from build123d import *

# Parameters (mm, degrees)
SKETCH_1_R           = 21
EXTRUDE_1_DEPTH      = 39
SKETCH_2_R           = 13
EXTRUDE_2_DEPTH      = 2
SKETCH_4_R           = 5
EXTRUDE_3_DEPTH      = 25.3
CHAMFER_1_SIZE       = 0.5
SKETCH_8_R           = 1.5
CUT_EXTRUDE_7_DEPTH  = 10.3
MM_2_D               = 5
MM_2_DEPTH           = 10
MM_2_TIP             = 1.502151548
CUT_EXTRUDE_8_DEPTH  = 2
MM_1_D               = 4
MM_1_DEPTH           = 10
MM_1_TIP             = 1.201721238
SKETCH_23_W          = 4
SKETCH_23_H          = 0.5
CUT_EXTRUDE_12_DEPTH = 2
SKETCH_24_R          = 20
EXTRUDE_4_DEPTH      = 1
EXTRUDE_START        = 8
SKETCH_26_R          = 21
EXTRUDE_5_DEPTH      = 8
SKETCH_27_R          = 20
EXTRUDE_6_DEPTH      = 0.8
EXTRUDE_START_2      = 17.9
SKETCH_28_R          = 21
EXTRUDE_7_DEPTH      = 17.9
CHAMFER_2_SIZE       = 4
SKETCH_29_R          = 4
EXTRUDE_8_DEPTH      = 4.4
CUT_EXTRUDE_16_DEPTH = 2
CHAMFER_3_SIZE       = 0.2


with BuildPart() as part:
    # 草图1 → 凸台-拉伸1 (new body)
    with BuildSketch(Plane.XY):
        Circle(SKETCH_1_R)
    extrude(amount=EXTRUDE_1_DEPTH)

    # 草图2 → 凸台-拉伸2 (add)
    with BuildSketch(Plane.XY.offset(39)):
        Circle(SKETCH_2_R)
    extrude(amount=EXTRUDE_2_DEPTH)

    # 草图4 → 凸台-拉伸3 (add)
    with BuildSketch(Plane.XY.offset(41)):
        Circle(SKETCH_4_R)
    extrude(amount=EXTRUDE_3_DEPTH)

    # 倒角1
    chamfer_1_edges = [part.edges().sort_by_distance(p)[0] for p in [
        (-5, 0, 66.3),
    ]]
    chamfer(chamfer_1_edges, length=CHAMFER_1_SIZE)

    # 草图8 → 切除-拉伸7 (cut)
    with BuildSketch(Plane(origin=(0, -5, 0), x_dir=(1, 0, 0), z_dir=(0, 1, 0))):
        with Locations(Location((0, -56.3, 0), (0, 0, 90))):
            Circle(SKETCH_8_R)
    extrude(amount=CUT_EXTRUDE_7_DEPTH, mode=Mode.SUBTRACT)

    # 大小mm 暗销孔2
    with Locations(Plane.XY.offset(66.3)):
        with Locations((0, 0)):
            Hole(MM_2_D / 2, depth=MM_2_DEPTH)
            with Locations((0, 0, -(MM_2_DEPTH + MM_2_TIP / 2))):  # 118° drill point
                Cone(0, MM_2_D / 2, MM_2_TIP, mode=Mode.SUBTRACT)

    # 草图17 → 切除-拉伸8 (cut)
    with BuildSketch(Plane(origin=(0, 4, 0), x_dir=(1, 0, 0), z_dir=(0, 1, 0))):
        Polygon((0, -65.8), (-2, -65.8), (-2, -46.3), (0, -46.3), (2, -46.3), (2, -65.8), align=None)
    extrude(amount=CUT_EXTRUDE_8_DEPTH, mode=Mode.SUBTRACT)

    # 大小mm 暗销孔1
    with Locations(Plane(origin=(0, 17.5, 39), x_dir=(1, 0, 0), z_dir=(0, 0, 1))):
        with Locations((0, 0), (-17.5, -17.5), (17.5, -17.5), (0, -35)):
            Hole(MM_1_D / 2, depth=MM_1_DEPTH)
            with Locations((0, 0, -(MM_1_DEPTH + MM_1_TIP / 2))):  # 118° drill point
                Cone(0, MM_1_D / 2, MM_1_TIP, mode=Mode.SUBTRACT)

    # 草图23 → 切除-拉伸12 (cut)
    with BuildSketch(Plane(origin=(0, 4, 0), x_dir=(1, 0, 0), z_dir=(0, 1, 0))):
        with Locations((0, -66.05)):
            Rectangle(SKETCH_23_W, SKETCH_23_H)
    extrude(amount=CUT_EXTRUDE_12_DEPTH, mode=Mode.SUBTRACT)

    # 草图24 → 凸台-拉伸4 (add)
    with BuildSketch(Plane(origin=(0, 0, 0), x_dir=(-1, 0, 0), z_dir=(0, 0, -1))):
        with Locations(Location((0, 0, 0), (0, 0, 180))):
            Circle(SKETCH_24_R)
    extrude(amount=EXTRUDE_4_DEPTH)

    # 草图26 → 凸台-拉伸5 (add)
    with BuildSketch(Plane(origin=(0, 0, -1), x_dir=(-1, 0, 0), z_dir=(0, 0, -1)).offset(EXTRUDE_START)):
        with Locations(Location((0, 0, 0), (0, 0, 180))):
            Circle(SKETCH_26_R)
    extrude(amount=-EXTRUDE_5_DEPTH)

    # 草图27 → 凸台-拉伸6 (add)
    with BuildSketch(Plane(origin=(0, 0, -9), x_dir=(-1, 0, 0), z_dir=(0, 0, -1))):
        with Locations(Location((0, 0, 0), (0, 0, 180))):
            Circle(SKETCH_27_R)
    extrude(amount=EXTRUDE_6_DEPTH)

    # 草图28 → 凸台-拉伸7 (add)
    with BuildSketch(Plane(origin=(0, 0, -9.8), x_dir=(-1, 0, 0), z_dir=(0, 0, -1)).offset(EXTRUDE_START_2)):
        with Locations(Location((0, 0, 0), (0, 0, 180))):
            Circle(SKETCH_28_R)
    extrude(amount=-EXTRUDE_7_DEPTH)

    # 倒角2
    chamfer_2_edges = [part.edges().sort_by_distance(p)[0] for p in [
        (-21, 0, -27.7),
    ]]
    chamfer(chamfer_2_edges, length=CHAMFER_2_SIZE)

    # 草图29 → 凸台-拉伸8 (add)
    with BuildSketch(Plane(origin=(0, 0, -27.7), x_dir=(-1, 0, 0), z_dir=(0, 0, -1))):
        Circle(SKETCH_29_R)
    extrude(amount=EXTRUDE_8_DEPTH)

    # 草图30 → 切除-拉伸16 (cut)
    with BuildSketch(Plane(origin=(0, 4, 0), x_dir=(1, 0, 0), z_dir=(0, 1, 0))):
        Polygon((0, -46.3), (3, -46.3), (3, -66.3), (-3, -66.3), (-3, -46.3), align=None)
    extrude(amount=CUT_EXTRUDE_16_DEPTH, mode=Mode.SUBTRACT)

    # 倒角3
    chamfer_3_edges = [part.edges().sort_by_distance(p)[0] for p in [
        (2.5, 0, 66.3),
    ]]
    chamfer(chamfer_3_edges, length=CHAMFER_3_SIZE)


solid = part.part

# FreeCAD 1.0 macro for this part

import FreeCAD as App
import Part
import Sketcher


def edges_at(feature, points):
    """Names of the edges that pass closest to the given points."""
    edges = feature.Shape.Edges
    near = lambda p: min(range(len(edges)), key=lambda i: edges[i].distToShape(Part.Vertex(*p))[0])
    return sorted({f"Edge{near(p) + 1}" for p in points})


def add_polygon(sketch, points):
    """Adds a closed chain of lines whose ends are joined by coincident constraints."""
    first, n = sketch.GeometryCount, len(points)
    for a, b in zip(points, points[1:] + points[:1]):
        sketch.addGeometry(Part.LineSegment(App.Vector(*a, 0), App.Vector(*b, 0)), False)
    for i in range(n):
        sketch.addConstraint(Sketcher.Constraint("Coincident", first + i, 2, first + (i + 1) % n, 1))

doc = App.newDocument("Part")
body = doc.addObject("PartDesign::Body", "Body")

# Sketch on XY plane
sketch1 = body.newObject("Sketcher::SketchObject", "Sketch")
sketch1.AttachmentSupport = (doc.getObject("XY_Plane"), [""])
sketch1.MapMode = "FlatFace"
sketch1.addGeometry(Part.Circle(App.Vector(0, 0, 0), App.Vector(0, 0, 1), 21), False)
sketch1.addConstraint(Sketcher.Constraint("Coincident", 0, 3, -1, 1))
sketch1.addConstraint(Sketcher.Constraint("Diameter", 0, 42.0))
pad1 = body.newObject("PartDesign::Pad", "Pad")
pad1.Profile = sketch1
pad1.Length = 39

# Sketch on XY plane
sketch2 = body.newObject("Sketcher::SketchObject", "Sketch001")
sketch2.AttachmentSupport = (doc.getObject("XY_Plane"), [""])
sketch2.MapMode = "FlatFace"
sketch2.AttachmentOffset = App.Placement(App.Vector(0, 0, 39), App.Rotation())
sketch2.addGeometry(Part.Circle(App.Vector(0, 0, 0), App.Vector(0, 0, 1), 13), False)
sketch2.addConstraint(Sketcher.Constraint("Coincident", 0, 3, -1, 1))
sketch2.addConstraint(Sketcher.Constraint("Diameter", 0, 26.0))
pad2 = body.newObject("PartDesign::Pad", "Pad001")
pad2.Profile = sketch2
pad2.Length = 2

# Sketch on XY plane
sketch3 = body.newObject("Sketcher::SketchObject", "Sketch002")
sketch3.AttachmentSupport = (doc.getObject("XY_Plane"), [""])
sketch3.MapMode = "FlatFace"
sketch3.AttachmentOffset = App.Placement(App.Vector(0, 0, 41), App.Rotation())
sketch3.addGeometry(Part.Circle(App.Vector(0, 0, 0), App.Vector(0, 0, 1), 5), False)
sketch3.addConstraint(Sketcher.Constraint("Coincident", 0, 3, -1, 1))
sketch3.addConstraint(Sketcher.Constraint("Diameter", 0, 10.0))
pad3 = body.newObject("PartDesign::Pad", "Pad002")
pad3.Profile = sketch3
pad3.Length = 25.3
doc.recompute()

chamfer = body.newObject("PartDesign::Chamfer", "Chamfer")
chamfer.Base = (pad3, edges_at(pad3, [(-5, 0, 66.3)]))
chamfer.Size = 0.5

# Sketch on XZ plane
sketch4 = body.newObject("Sketcher::SketchObject", "Sketch003")
sketch4.AttachmentSupport = (doc.getObject("XZ_Plane"), [""])
sketch4.MapMode = "FlatFace"
sketch4.AttachmentOffset = App.Placement(App.Vector(0, 0, 5), App.Rotation())
sketch4.addGeometry(Part.Circle(App.Vector(0, 56.3, 0), App.Vector(0, 0, 1), 1.5), False)
sketch4.addConstraint(Sketcher.Constraint("PointOnObject", 0, 3, -2))
sketch4.addConstraint(Sketcher.Constraint("Diameter", 0, 3.0))
sketch4.addConstraint(Sketcher.Constraint("DistanceY", -1, 1, 0, 3, 56.3))
pocket1 = body.newObject("PartDesign::Pocket", "Pocket")
pocket1.Profile = sketch4
pocket1.Length = 10.3

# Sketch on XY plane
sketch5 = body.newObject("Sketcher::SketchObject", "Sketch004")
sketch5.AttachmentSupport = (doc.getObject("XY_Plane"), [""])
sketch5.MapMode = "FlatFace"
sketch5.AttachmentOffset = App.Placement(App.Vector(0, 0, 66.3), App.Rotation())
sketch5.addGeometry(Part.Circle(App.Vector(0, 0, 0), App.Vector(0, 0, 1), 2.5), False)
sketch5.addConstraint(Sketcher.Constraint("Coincident", 0, 3, -1, 1))
sketch5.addConstraint(Sketcher.Constraint("Diameter", 0, 5.0))
doc.recompute()
hole = body.newObject("PartDesign::Hole", "Hole")
hole.Profile = sketch5
hole.ThreadType = "None"
hole.Diameter = 5
hole.DepthType = "Dimension"
hole.Depth = 10
hole.DrillPoint = "Angled"
hole.DrillPointAngle = 118

# Sketch on XZ plane
sketch6 = body.newObject("Sketcher::SketchObject", "Sketch005")
sketch6.AttachmentSupport = (doc.getObject("XZ_Plane"), [""])
sketch6.MapMode = "FlatFace"
sketch6.AttachmentOffset = App.Placement(App.Vector(0, 0, -4), App.Rotation())
add_polygon(sketch6, [(-2, 65.8), (2, 65.8), (2, 46.3), (-2, 46.3)])  # lines 0-3
sketch6.addConstraint(Sketcher.Constraint("Horizontal", 0))
sketch6.addConstraint(Sketcher.Constraint("Vertical", 1))
sketch6.addConstraint(Sketcher.Constraint("Horizontal", 2))
sketch6.addConstraint(Sketcher.Constraint("Vertical", 3))
sketch6.addConstraint(Sketcher.Constraint("DistanceX", 0, 1, 0, 2, 4.0))
sketch6.addConstraint(Sketcher.Constraint("DistanceY", 1, 2, 1, 1, 19.5))
sketch6.addConstraint(Sketcher.Constraint("DistanceX", -1, 1, 0, 2, 2.0))
sketch6.addConstraint(Sketcher.Constraint("DistanceY", -1, 1, 0, 2, 65.8))
pocket2 = body.newObject("PartDesign::Pocket", "Pocket001")
pocket2.Profile = sketch6
pocket2.Length = 2

# Sketch on XY plane
sketch7 = body.newObject("Sketcher::SketchObject", "Sketch006")
sketch7.AttachmentSupport = (doc.getObject("XY_Plane"), [""])
sketch7.MapMode = "FlatFace"
sketch7.AttachmentOffset = App.Placement(App.Vector(0, 0, 39), App.Rotation())
sketch7.addGeometry(Part.Circle(App.Vector(0, 17.5, 0), App.Vector(0, 0, 1), 2), False)
sketch7.addGeometry(Part.Circle(App.Vector(-17.5, 0, 0), App.Vector(0, 0, 1), 2), False)
sketch7.addGeometry(Part.Circle(App.Vector(17.5, 0, 0), App.Vector(0, 0, 1), 2), False)
sketch7.addGeometry(Part.Circle(App.Vector(0, -17.5, 0), App.Vector(0, 0, 1), 2), False)
sketch7.addConstraint(Sketcher.Constraint("Equal", 0, 1))
sketch7.addConstraint(Sketcher.Constraint("Equal", 1, 2))
sketch7.addConstraint(Sketcher.Constraint("Equal", 2, 3))
sketch7.addConstraint(Sketcher.Constraint("Symmetric", 1, 3, 2, 3, -1, 1))
sketch7.addConstraint(Sketcher.Constraint("Symmetric", 0, 3, 3, 3, -1, 1))
sketch7.addConstraint(Sketcher.Constraint("PointOnObject", 0, 3, -2))
sketch7.addConstraint(Sketcher.Constraint("PointOnObject", 1, 3, -1))
sketch7.addConstraint(Sketcher.Constraint("Diameter", 0, 4.0))
sketch7.addConstraint(Sketcher.Constraint("DistanceX", 1, 3, 2, 3, 35.0))
sketch7.addConstraint(Sketcher.Constraint("DistanceY", 3, 3, 0, 3, 35.0))
doc.recompute()
hole2 = body.newObject("PartDesign::Hole", "Hole001")
hole2.Profile = sketch7
hole2.ThreadType = "None"
hole2.Diameter = 4
hole2.DepthType = "Dimension"
hole2.Depth = 10
hole2.DrillPoint = "Angled"
hole2.DrillPointAngle = 118

# Sketch on XZ plane
sketch8 = body.newObject("Sketcher::SketchObject", "Sketch007")
sketch8.AttachmentSupport = (doc.getObject("XZ_Plane"), [""])
sketch8.MapMode = "FlatFace"
sketch8.AttachmentOffset = App.Placement(App.Vector(0, 0, -4), App.Rotation())
add_polygon(sketch8, [(-2, 65.8), (-2, 66.3), (2, 66.3), (2, 65.8)])  # lines 0-3
sketch8.addConstraint(Sketcher.Constraint("Vertical", 0))
sketch8.addConstraint(Sketcher.Constraint("Horizontal", 1))
sketch8.addConstraint(Sketcher.Constraint("Vertical", 2))
sketch8.addConstraint(Sketcher.Constraint("Horizontal", 3))
sketch8.addConstraint(Sketcher.Constraint("DistanceX", 1, 1, 1, 2, 4.0))
sketch8.addConstraint(Sketcher.Constraint("DistanceY", 0, 1, 0, 2, 0.5))
sketch8.addConstraint(Sketcher.Constraint("DistanceX", 0, 2, -1, 1, 2.0))
sketch8.addConstraint(Sketcher.Constraint("DistanceY", -1, 1, 0, 2, 66.3))
pocket3 = body.newObject("PartDesign::Pocket", "Pocket002")
pocket3.Profile = sketch8
pocket3.Length = 2

# Sketch on XY plane
sketch9 = body.newObject("Sketcher::SketchObject", "Sketch008")
sketch9.AttachmentSupport = (doc.getObject("XY_Plane"), [""])
sketch9.MapMode = "FlatFace"
sketch9.addGeometry(Part.Circle(App.Vector(0, 0, 0), App.Vector(0, 0, 1), 20), False)
sketch9.addConstraint(Sketcher.Constraint("Coincident", 0, 3, -1, 1))
sketch9.addConstraint(Sketcher.Constraint("Diameter", 0, 40.0))
pad4 = body.newObject("PartDesign::Pad", "Pad003")
pad4.Profile = sketch9
pad4.Length = 1
pad4.Reversed = True

# Sketch on XY plane
sketch10 = body.newObject("Sketcher::SketchObject", "Sketch009")
sketch10.AttachmentSupport = (doc.getObject("XY_Plane"), [""])
sketch10.MapMode = "FlatFace"
sketch10.AttachmentOffset = App.Placement(App.Vector(0, 0, -9), App.Rotation())
sketch10.addGeometry(Part.Circle(App.Vector(0, 0, 0), App.Vector(0, 0, 1), 21), False)
sketch10.addConstraint(Sketcher.Constraint("Coincident", 0, 3, -1, 1))
sketch10.addConstraint(Sketcher.Constraint("Diameter", 0, 42.0))
pad5 = body.newObject("PartDesign::Pad", "Pad004")
pad5.Profile = sketch10
pad5.Length = 8

# Sketch on XY plane
sketch11 = body.newObject("Sketcher::SketchObject", "Sketch010")
sketch11.AttachmentSupport = (doc.getObject("XY_Plane"), [""])
sketch11.MapMode = "FlatFace"
sketch11.AttachmentOffset = App.Placement(App.Vector(0, 0, -9), App.Rotation())
sketch11.addGeometry(Part.Circle(App.Vector(0, 0, 0), App.Vector(0, 0, 1), 20), False)
sketch11.addConstraint(Sketcher.Constraint("Coincident", 0, 3, -1, 1))
sketch11.addConstraint(Sketcher.Constraint("Diameter", 0, 40.0))
pad6 = body.newObject("PartDesign::Pad", "Pad005")
pad6.Profile = sketch11
pad6.Length = 0.8
pad6.Reversed = True

# Sketch on XY plane
sketch12 = body.newObject("Sketcher::SketchObject", "Sketch011")
sketch12.AttachmentSupport = (doc.getObject("XY_Plane"), [""])
sketch12.MapMode = "FlatFace"
sketch12.AttachmentOffset = App.Placement(App.Vector(0, 0, -27.7), App.Rotation())
sketch12.addGeometry(Part.Circle(App.Vector(0, 0, 0), App.Vector(0, 0, 1), 21), False)
sketch12.addConstraint(Sketcher.Constraint("Coincident", 0, 3, -1, 1))
sketch12.addConstraint(Sketcher.Constraint("Diameter", 0, 42.0))
pad7 = body.newObject("PartDesign::Pad", "Pad006")
pad7.Profile = sketch12
pad7.Length = 17.9
doc.recompute()

chamfer2 = body.newObject("PartDesign::Chamfer", "Chamfer001")
chamfer2.Base = (pad7, edges_at(pad7, [(-21, 0, -27.7)]))
chamfer2.Size = 4

# Sketch on XY plane
sketch13 = body.newObject("Sketcher::SketchObject", "Sketch012")
sketch13.AttachmentSupport = (doc.getObject("XY_Plane"), [""])
sketch13.MapMode = "FlatFace"
sketch13.AttachmentOffset = App.Placement(App.Vector(0, 0, -27.7), App.Rotation())
sketch13.addGeometry(Part.Circle(App.Vector(0, 0, 0), App.Vector(0, 0, 1), 4), False)
sketch13.addConstraint(Sketcher.Constraint("Coincident", 0, 3, -1, 1))
sketch13.addConstraint(Sketcher.Constraint("Diameter", 0, 8.0))
pad8 = body.newObject("PartDesign::Pad", "Pad007")
pad8.Profile = sketch13
pad8.Length = 4.4
pad8.Reversed = True

# Sketch on XZ plane
sketch14 = body.newObject("Sketcher::SketchObject", "Sketch013")
sketch14.AttachmentSupport = (doc.getObject("XZ_Plane"), [""])
sketch14.MapMode = "FlatFace"
sketch14.AttachmentOffset = App.Placement(App.Vector(0, 0, -4), App.Rotation())
add_polygon(sketch14, [(3, 46), (-3, 46), (-3, 66), (3, 66)])  # lines 0-3
sketch14.addConstraint(Sketcher.Constraint("Horizontal", 0))
sketch14.addConstraint(Sketcher.Constraint("Vertical", 1))
sketch14.addConstraint(Sketcher.Constraint("Horizontal", 2))
sketch14.addConstraint(Sketcher.Constraint("Vertical", 3))
sketch14.addConstraint(Sketcher.Constraint("DistanceX", 0, 2, 0, 1, 6.0))
sketch14.addConstraint(Sketcher.Constraint("DistanceY", 1, 1, 1, 2, 20.0))
sketch14.addConstraint(Sketcher.Constraint("DistanceX", 0, 2, -1, 1, 3.0))
sketch14.addConstraint(Sketcher.Constraint("DistanceY", -1, 1, 0, 2, 46.3))
pocket4 = body.newObject("PartDesign::Pocket", "Pocket003")
pocket4.Profile = sketch14
pocket4.Length = 2
doc.recompute()

chamfer3 = body.newObject("PartDesign::Chamfer", "Chamfer002")
chamfer3.Base = (pocket4, edges_at(pocket4, [(2.5, 0, 66.3)]))
chamfer3.Size = 0.2

doc.recompute()
